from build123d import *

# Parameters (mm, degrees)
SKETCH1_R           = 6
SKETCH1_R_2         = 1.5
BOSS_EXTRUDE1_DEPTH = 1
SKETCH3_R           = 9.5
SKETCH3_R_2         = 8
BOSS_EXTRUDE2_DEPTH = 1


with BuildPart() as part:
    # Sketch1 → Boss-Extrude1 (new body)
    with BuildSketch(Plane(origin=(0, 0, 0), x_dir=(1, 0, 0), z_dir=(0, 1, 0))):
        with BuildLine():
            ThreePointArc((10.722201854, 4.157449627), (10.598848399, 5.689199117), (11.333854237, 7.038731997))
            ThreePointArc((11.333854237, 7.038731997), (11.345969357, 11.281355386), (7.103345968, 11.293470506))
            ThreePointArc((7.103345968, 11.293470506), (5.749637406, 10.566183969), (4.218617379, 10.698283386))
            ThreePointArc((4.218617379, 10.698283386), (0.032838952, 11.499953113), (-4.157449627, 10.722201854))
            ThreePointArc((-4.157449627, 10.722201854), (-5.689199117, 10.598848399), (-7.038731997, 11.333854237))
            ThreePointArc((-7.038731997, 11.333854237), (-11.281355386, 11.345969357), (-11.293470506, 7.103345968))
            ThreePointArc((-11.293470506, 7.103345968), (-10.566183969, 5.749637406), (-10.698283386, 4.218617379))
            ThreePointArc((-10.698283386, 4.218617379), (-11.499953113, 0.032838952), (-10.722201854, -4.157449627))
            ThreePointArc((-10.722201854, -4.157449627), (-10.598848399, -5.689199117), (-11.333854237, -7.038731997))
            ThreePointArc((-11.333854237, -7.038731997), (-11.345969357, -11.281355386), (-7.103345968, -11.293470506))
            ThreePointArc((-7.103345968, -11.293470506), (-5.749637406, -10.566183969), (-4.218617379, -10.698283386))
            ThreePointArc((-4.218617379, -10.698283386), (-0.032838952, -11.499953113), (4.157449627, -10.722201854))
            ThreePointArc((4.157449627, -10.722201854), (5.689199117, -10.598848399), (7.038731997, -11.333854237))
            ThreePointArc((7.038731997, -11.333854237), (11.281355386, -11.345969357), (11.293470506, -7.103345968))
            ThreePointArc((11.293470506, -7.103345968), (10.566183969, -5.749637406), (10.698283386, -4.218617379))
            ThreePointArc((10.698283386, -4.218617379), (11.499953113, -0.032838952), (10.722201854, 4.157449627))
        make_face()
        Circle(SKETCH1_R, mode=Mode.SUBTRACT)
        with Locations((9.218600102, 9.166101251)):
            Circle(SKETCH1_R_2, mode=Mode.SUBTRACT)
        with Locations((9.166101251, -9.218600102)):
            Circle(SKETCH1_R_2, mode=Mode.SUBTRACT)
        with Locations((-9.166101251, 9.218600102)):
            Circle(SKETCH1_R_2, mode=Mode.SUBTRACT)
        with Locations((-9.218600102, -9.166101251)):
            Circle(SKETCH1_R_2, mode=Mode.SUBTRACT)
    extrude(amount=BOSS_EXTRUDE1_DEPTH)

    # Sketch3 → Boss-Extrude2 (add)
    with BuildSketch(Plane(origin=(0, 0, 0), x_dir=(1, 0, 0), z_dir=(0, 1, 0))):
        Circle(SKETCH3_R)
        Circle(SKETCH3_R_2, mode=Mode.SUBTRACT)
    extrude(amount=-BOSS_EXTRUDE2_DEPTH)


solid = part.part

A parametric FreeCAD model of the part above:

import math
import FreeCAD as App
import Part
import Sketcher
Q = App.Units.Quantity

doc = App.newDocument("Part")
body = doc.addObject("PartDesign::Body", "Body")

# Sketch on XZ plane
sketch1 = body.newObject("Sketcher::SketchObject", "Sketch")
sketch1.AttachmentSupport = (doc.getObject("XZ_Plane"), [""])
sketch1.MapMode = "FlatFace"
sketch1.addGeometry(Part.ArcOfCircle(Part.Circle(App.Vector(13.2, -5.1, 0), App.Vector(0, 0, 1), 2.7), math.radians(159), math.radians(225)), False)
sketch1.addGeometry(Part.ArcOfCircle(Part.Circle(App.Vector(9.2, -9.2, 0), App.Vector(0, 0, 1), 3), math.radians(-135), math.radians(45)), False)
sketch1.addGeometry(Part.ArcOfCircle(Part.Circle(App.Vector(5.2, -13.2, 0), App.Vector(0, 0, 1), 2.7), math.radians(45), math.radians(112)), False)
sketch1.addGeometry(Part.ArcOfCircle(Part.Circle(App.Vector(0, 0, 0), App.Vector(0, 0, 1), 11.5), math.radians(-111), math.radians(-68)), False)
sketch1.addGeometry(Part.ArcOfCircle(Part.Circle(App.Vector(-5.1, -13.2, 0), App.Vector(0, 0, 1), 2.7), math.radians(69), math.radians(135)), False)
sketch1.addGeometry(Part.ArcOfCircle(Part.Circle(App.Vector(-9.2, -9.2, 0), App.Vector(0, 0, 1), 3), math.radians(135), math.radians(315)), False)
sketch1.addGeometry(Part.ArcOfCircle(Part.Circle(App.Vector(-13.2, -5.2, 0), App.Vector(0, 0, 1), 2.7), math.radians(-45), math.radians(22)), False)
sketch1.addGeometry(Part.ArcOfCircle(Part.Circle(App.Vector(0, 0, 0), App.Vector(0, 0, 1), 11.5), math.radians(159), math.radians(202)), False)
sketch1.addGeometry(Part.ArcOfCircle(Part.Circle(App.Vector(-13.2, 5.1, 0), App.Vector(0, 0, 1), 2.7), math.radians(-21), math.radians(45)), False)
sketch1.addGeometry(Part.ArcOfCircle(Part.Circle(App.Vector(-9.2, 9.2, 0), App.Vector(0, 0, 1), 3), math.radians(45), math.radians(225)), False)
sketch1.addGeometry(Part.ArcOfCircle(Part.Circle(App.Vector(-5.2, 13.2, 0), App.Vector(0, 0, 1), 2.7), math.radians(-135), math.radians(-68)), False)
sketch1.addGeometry(Part.ArcOfCircle(Part.Circle(App.Vector(0, 0, 0), App.Vector(0, 0, 1), 11.5), math.radians(69), math.radians(112)), False)
sketch1.addGeometry(Part.ArcOfCircle(Part.Circle(App.Vector(5.1, 13.2, 0), App.Vector(0, 0, 1), 2.7), math.radians(-111), math.radians(-45)), False)
sketch1.addGeometry(Part.ArcOfCircle(Part.Circle(App.Vector(9.2, 9.2, 0), App.Vector(0, 0, 1), 3), math.radians(-45), math.radians(135)), False)
sketch1.addGeometry(Part.ArcOfCircle(Part.Circle(App.Vector(13.2, 5.2, 0), App.Vector(0, 0, 1), 2.7), math.radians(135), math.radians(202)), False)
sketch1.addGeometry(Part.ArcOfCircle(Part.Circle(App.Vector(0, 0, 0), App.Vector(0, 0, 1), 11.5), math.radians(-21), math.radians(22)), False)
sketch1.addGeometry(Part.Circle(App.Vector(-9.2, 9.2, 0), App.Vector(0, 0, 1), 1.5), False)
sketch1.addGeometry(Part.Circle(App.Vector(9.2, 9.2, 0), App.Vector(0, 0, 1), 1.5), False)
sketch1.addGeometry(Part.Circle(App.Vector(-9.2, -9.2, 0), App.Vector(0, 0, 1), 1.5), False)
sketch1.addGeometry(Part.Circle(App.Vector(0, 0, 0), App.Vector(0, 0, 1), 6), False)
sketch1.addGeometry(Part.Circle(App.Vector(9.2, -9.2, 0), App.Vector(0, 0, 1), 1.5), False)
sketch1.addConstraint(Sketcher.Constraint("Tangent", 0, 2, 1, 2))
sketch1.addConstraint(Sketcher.Constraint("Tangent", 1, 1, 2, 1))
sketch1.addConstraint(Sketcher.Constraint("Tangent", 2, 2, 3, 2))
sketch1.addConstraint(Sketcher.Constraint("Tangent", 3, 1, 4, 1))
sketch1.addConstraint(Sketcher.Constraint("Tangent", 4, 2, 5, 2))
sketch1.addConstraint(Sketcher.Constraint("Tangent", 5, 1, 6, 1))
sketch1.addConstraint(Sketcher.Constraint("Tangent", 6, 2, 7, 2))
sketch1.addConstraint(Sketcher.Constraint("Tangent", 7, 1, 8, 1))
sketch1.addConstraint(Sketcher.Constraint("Tangent", 8, 2, 9, 2))
sketch1.addConstraint(Sketcher.Constraint("Tangent", 9, 1, 10, 1))
sketch1.addConstraint(Sketcher.Constraint("Tangent", 10, 2, 11, 2))
sketch1.addConstraint(Sketcher.Constraint("Tangent", 11, 1, 12, 1))
sketch1.addConstraint(Sketcher.Constraint("Tangent", 12, 2, 13, 2))
sketch1.addConstraint(Sketcher.Constraint("Tangent", 13, 1, 14, 1))
sketch1.addConstraint(Sketcher.Constraint("Tangent", 14, 2, 15, 2))
sketch1.addConstraint(Sketcher.Constraint("Tangent", 15, 1, 0, 1))
sketch1.addConstraint(Sketcher.Constraint("Coincident", 3, 3, -1, 1))
sketch1.addConstraint(Sketcher.Constraint("Coincident", 7, 3, -1, 1))
sketch1.addConstraint(Sketcher.Constraint("Coincident", 11, 3, -1, 1))
sketch1.addConstraint(Sketcher.Constraint("Coincident", 15, 3, -1, 1))
sketch1.addConstraint(Sketcher.Constraint("Coincident", 19, 3, -1, 1))
sketch1.addConstraint(Sketcher.Constraint("Coincident", 16, 3, 9, 3))
sketch1.addConstraint(Sketcher.Constraint("Coincident", 17, 3, 13, 3))
sketch1.addConstraint(Sketcher.Constraint("Coincident", 18, 3, 5, 3))
sketch1.addConstraint(Sketcher.Constraint("Coincident", 20, 3, 1, 3))
sketch1.addConstraint(Sketcher.Constraint("Equal", 0, 2))
sketch1.addConstraint(Sketcher.Constraint("Equal", 2, 4))
sketch1.addConstraint(Sketcher.Constraint("Equal", 1, 5))
sketch1.addConstraint(Sketcher.Constraint("Equal", 4, 6))
sketch1.addConstraint(Sketcher.Constraint("Equal", 3, 7))
sketch1.addConstraint(Sketcher.Constraint("Equal", 6, 8))
sketch1.addConstraint(Sketcher.Constraint("Equal", 5, 9))
sketch1.addConstraint(Sketcher.Constraint("Equal", 8, 10))
sketch1.addConstraint(Sketcher.Constraint("Equal", 7, 11))
sketch1.addConstraint(Sketcher.Constraint("Equal", 10, 12))
sketch1.addConstraint(Sketcher.Constraint("Equal", 9, 13))
sketch1.addConstraint(Sketcher.Constraint("Equal", 12, 14))
sketch1.addConstraint(Sketcher.Constraint("Equal", 11, 15))
sketch1.addConstraint(Sketcher.Constraint("Equal", 16, 17))
sketch1.addConstraint(Sketcher.Constraint("Equal", 17, 18))
sketch1.addConstraint(Sketcher.Constraint("Equal", 18, 20))
sketch1.addConstraint(Sketcher.Constraint("Symmetric", 1, 3, 9, 3, -1, 1))
sketch1.addConstraint(Sketcher.Constraint("Symmetric", 5, 3, 13, 3, -1, 1))
sketch1.addConstraint(Sketcher.Constraint("Diameter", 16, Q("3 mm")))
sketch1.addConstraint(Sketcher.Constraint("Diameter", 19, Q("12 mm")))
sketch1.addConstraint(Sketcher.Constraint("Radius", 1, Q("3 mm")))
sketch1.addConstraint(Sketcher.Constraint("Radius", 3, Q("11.5 mm")))
sketch1.addConstraint(Sketcher.Constraint("Radius", 0, Q("2.691176 mm")))
sketch1.addConstraint(Sketcher.Constraint("DistanceX", -1, 1, 1, 3, Q("9.2186 mm")))
sketch1.addConstraint(Sketcher.Constraint("DistanceY", 1, 3, -1, 1, Q("9.166101 mm")))
sketch1.addConstraint(Sketcher.Constraint("DistanceX", 5, 3, -1, 1, Q("9.166101 mm")))
sketch1.addConstraint(Sketcher.Constraint("DistanceY", 5, 3, -1, 1, Q("9.2186 mm")))
pad1 = body.newObject("PartDesign::Pad", "Pad")
pad1.Profile = sketch1
pad1.Length = 1
pad1.Reversed = True

# Sketch on XZ plane
sketch2 = body.newObject("Sketcher::SketchObject", "Sketch001")
sketch2.AttachmentSupport = (doc.getObject("XZ_Plane"), [""])
sketch2.MapMode = "FlatFace"
sketch2.addGeometry(Part.Circle(App.Vector(0, 0, 0), App.Vector(0, 0, 1), 10), False)
sketch2.addGeometry(Part.Circle(App.Vector(0, 0, 0), App.Vector(0, 0, 1), 8), False)
sketch2.addConstraint(Sketcher.Constraint("Coincident", 0, 3, -1, 1))
sketch2.addConstraint(Sketcher.Constraint("Coincident", 1, 3, -1, 1))
sketch2.addConstraint(Sketcher.Constraint("Diameter", 0, Q("19 mm")))
sketch2.addConstraint(Sketcher.Constraint("Diameter", 1, Q("16 mm")))
pad2 = body.newObject("PartDesign::Pad", "Pad001")
pad2.Profile = sketch2
pad2.Length = 1

doc.recompute()
